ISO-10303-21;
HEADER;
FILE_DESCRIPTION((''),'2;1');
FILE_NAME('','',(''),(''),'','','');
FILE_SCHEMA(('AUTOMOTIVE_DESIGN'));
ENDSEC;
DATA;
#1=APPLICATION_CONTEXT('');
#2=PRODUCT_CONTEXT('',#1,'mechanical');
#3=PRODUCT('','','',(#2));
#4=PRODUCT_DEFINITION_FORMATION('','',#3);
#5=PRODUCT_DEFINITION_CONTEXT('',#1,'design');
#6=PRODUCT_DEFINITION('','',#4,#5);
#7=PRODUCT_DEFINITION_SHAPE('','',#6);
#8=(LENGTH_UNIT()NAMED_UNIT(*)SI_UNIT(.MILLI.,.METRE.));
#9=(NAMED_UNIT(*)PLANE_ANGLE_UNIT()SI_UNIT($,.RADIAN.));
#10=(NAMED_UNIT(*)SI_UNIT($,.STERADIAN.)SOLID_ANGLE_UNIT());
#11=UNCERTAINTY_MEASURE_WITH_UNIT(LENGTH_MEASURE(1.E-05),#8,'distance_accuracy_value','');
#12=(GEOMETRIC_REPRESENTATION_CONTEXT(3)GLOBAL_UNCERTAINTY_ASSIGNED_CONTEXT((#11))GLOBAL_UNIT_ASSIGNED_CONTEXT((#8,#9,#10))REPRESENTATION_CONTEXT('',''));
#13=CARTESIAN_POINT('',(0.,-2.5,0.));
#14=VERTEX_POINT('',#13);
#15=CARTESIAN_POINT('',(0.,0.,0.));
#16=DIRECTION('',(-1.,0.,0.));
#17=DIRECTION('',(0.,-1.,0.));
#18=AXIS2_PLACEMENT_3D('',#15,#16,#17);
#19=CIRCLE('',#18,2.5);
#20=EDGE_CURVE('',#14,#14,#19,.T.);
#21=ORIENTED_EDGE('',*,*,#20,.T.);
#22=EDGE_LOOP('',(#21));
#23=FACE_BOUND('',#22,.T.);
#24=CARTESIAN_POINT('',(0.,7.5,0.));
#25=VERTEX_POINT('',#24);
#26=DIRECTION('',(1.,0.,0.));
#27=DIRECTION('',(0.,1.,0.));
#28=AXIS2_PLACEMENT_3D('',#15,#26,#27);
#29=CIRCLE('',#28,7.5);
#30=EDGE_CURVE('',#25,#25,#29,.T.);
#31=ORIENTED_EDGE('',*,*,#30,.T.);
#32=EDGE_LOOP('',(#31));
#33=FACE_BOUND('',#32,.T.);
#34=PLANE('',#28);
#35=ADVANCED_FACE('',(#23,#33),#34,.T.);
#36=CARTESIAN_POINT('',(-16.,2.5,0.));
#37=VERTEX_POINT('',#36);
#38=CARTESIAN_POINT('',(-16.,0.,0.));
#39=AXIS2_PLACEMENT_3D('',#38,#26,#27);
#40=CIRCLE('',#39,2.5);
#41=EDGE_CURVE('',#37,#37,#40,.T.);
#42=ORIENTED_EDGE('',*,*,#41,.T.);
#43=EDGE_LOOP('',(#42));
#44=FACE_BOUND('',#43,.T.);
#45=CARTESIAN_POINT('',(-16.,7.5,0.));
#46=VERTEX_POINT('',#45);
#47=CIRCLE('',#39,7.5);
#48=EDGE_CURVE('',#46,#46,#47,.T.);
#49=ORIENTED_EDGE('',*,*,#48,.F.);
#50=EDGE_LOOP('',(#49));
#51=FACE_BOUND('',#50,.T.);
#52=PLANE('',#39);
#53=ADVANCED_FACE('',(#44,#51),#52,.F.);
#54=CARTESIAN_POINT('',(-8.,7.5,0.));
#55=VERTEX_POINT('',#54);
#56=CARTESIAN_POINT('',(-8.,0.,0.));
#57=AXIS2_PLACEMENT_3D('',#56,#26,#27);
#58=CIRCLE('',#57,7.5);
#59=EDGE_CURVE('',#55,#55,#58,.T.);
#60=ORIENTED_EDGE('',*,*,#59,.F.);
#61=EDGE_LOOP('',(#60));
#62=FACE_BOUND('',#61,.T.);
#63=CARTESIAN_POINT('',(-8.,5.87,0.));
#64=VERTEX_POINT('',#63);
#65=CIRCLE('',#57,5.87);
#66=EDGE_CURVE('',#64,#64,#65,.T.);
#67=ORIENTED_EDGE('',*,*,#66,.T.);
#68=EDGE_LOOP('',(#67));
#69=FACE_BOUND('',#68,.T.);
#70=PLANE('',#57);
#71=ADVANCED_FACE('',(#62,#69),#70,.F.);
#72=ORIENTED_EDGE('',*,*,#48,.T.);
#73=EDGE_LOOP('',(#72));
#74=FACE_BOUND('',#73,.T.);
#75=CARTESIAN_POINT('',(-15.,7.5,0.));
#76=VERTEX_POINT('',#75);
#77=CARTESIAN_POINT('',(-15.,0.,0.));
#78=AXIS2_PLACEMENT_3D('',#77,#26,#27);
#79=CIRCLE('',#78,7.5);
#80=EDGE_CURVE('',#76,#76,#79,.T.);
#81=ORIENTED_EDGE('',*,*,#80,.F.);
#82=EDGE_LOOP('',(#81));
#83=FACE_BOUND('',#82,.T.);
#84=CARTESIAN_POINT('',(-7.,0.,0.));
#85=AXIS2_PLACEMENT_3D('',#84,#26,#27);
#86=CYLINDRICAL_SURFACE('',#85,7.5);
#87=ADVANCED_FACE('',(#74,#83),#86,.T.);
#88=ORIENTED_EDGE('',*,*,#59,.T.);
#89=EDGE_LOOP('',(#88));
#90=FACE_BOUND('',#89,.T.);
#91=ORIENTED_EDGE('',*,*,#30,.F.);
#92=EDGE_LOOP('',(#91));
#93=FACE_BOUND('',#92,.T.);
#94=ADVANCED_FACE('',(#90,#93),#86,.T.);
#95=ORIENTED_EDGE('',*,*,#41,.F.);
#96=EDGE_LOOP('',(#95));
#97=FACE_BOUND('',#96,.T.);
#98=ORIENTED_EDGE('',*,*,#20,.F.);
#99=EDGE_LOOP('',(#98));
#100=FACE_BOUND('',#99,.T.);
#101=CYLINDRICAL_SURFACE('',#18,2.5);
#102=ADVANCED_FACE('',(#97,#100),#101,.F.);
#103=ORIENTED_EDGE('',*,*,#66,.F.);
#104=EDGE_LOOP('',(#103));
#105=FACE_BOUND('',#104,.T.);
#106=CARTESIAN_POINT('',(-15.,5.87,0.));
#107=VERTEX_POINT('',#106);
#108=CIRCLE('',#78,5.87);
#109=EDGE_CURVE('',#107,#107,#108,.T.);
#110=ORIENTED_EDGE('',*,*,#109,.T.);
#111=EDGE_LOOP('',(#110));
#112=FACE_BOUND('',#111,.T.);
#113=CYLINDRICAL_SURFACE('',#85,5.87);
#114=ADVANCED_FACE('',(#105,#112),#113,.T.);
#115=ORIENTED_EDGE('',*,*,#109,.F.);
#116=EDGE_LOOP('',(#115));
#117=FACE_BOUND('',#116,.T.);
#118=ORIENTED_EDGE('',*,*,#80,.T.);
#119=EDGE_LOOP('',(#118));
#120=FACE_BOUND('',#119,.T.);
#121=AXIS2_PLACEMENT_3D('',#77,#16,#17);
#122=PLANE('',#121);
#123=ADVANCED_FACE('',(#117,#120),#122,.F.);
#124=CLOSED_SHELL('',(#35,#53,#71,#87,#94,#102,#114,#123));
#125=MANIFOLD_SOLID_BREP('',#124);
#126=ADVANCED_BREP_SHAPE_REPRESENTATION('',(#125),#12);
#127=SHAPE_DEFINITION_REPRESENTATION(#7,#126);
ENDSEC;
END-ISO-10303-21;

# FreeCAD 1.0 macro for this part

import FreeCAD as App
import Part
import Sketcher
Q = App.Units.Quantity

doc = App.newDocument("Part")
body = doc.addObject("PartDesign::Body", "Body")

# Sketch on XY plane
sketch1 = body.newObject("Sketcher::SketchObject", "Sketch")
sketch1.AttachmentSupport = (doc.getObject("XY_Plane"), [""])
sketch1.MapMode = "FlatFace"
sketch1.addGeometry([
    Part.LineSegment(App.Vector(-16, 0, 0), App.Vector(0, 0, 0)),  # 0
    Part.LineSegment(App.Vector(0, 0, 0), App.Vector(0, 7.5, 0)),  # 1
    Part.LineSegment(App.Vector(0, 7.5, 0), App.Vector(-8, 7.5, 0)),  # 2
    Part.LineSegment(App.Vector(-8, 7.5, 0), App.Vector(-8, 5.9, 0)),  # 3
    Part.LineSegment(App.Vector(-8, 5.9, 0), App.Vector(-15, 5.9, 0)),  # 4
    Part.LineSegment(App.Vector(-15, 5.9, 0), App.Vector(-15, 7.5, 0)),  # 5
    Part.LineSegment(App.Vector(-15, 7.5, 0), App.Vector(-16, 7.5, 0)),  # 6
    Part.LineSegment(App.Vector(-16, 7.5, 0), App.Vector(-16, 0, 0)),  # 7
], False)
sketch1.addConstraint([
    Sketcher.Constraint("Coincident", 0, 2, 1, 1),
    Sketcher.Constraint("Coincident", 1, 2, 2, 1),
    Sketcher.Constraint("Coincident", 2, 2, 3, 1),
    Sketcher.Constraint("Coincident", 3, 2, 4, 1),
    Sketcher.Constraint("Coincident", 4, 2, 5, 1),
    Sketcher.Constraint("Coincident", 5, 2, 6, 1),
    Sketcher.Constraint("Coincident", 6, 2, 7, 1),
    Sketcher.Constraint("Coincident", 7, 2, 0, 1),
    Sketcher.Constraint("Horizontal", 0),
    Sketcher.Constraint("Vertical", 1),
    Sketcher.Constraint("Horizontal", 2),
    Sketcher.Constraint("Vertical", 3),
    Sketcher.Constraint("Horizontal", 4),
    Sketcher.Constraint("Vertical", 5),
    Sketcher.Constraint("Horizontal", 6),
    Sketcher.Constraint("Vertical", 7),
    Sketcher.Constraint("Coincident", 0, 2, -1, 1),
    Sketcher.Constraint("Horizontal", 2, 2, 5, 2),
    Sketcher.Constraint("DistanceX", 0, 1, 0, 2, Q("16 mm")),
    Sketcher.Constraint("DistanceX", 2, 2, 2, 1, Q("8 mm")),
    Sketcher.Constraint("DistanceX", 4, 2, 4, 1, Q("7 mm")),
    Sketcher.Constraint("DistanceY", 1, 1, 1, 2, Q("7.5 mm")),
    Sketcher.Constraint("DistanceY", 3, 2, 3, 1, Q("1.63 mm")),
])
revolution = body.newObject("PartDesign::Revolution", "Revolution")
revolution.Profile = sketch1
revolution.ReferenceAxis = (sketch1, ["H_Axis"])
revolution.Angle = 360

# Sketch on YZ plane
sketch2 = body.newObject("Sketcher::SketchObject", "Sketch001")
sketch2.AttachmentSupport = (doc.getObject("YZ_Plane"), [""])
sketch2.MapMode = "FlatFace"
sketch2.AttachmentOffset = App.Placement(App.Vector(0, 0, -16), App.Rotation())
sketch2.addGeometry(Part.Circle(App.Vector(0, 0, 0), App.Vector(0, 0, 1), 2.5), False)
sketch2.addConstraint([
    Sketcher.Constraint("Coincident", 0, 3, -1, 1),
    Sketcher.Constraint("Diameter", 0, Q("5 mm")),
])
pocket1 = body.newObject("PartDesign::Pocket", "Pocket")
pocket1.Profile = sketch2
pocket1.Type = "ThroughAll"
pocket1.Midplane = True

doc.recompute()
